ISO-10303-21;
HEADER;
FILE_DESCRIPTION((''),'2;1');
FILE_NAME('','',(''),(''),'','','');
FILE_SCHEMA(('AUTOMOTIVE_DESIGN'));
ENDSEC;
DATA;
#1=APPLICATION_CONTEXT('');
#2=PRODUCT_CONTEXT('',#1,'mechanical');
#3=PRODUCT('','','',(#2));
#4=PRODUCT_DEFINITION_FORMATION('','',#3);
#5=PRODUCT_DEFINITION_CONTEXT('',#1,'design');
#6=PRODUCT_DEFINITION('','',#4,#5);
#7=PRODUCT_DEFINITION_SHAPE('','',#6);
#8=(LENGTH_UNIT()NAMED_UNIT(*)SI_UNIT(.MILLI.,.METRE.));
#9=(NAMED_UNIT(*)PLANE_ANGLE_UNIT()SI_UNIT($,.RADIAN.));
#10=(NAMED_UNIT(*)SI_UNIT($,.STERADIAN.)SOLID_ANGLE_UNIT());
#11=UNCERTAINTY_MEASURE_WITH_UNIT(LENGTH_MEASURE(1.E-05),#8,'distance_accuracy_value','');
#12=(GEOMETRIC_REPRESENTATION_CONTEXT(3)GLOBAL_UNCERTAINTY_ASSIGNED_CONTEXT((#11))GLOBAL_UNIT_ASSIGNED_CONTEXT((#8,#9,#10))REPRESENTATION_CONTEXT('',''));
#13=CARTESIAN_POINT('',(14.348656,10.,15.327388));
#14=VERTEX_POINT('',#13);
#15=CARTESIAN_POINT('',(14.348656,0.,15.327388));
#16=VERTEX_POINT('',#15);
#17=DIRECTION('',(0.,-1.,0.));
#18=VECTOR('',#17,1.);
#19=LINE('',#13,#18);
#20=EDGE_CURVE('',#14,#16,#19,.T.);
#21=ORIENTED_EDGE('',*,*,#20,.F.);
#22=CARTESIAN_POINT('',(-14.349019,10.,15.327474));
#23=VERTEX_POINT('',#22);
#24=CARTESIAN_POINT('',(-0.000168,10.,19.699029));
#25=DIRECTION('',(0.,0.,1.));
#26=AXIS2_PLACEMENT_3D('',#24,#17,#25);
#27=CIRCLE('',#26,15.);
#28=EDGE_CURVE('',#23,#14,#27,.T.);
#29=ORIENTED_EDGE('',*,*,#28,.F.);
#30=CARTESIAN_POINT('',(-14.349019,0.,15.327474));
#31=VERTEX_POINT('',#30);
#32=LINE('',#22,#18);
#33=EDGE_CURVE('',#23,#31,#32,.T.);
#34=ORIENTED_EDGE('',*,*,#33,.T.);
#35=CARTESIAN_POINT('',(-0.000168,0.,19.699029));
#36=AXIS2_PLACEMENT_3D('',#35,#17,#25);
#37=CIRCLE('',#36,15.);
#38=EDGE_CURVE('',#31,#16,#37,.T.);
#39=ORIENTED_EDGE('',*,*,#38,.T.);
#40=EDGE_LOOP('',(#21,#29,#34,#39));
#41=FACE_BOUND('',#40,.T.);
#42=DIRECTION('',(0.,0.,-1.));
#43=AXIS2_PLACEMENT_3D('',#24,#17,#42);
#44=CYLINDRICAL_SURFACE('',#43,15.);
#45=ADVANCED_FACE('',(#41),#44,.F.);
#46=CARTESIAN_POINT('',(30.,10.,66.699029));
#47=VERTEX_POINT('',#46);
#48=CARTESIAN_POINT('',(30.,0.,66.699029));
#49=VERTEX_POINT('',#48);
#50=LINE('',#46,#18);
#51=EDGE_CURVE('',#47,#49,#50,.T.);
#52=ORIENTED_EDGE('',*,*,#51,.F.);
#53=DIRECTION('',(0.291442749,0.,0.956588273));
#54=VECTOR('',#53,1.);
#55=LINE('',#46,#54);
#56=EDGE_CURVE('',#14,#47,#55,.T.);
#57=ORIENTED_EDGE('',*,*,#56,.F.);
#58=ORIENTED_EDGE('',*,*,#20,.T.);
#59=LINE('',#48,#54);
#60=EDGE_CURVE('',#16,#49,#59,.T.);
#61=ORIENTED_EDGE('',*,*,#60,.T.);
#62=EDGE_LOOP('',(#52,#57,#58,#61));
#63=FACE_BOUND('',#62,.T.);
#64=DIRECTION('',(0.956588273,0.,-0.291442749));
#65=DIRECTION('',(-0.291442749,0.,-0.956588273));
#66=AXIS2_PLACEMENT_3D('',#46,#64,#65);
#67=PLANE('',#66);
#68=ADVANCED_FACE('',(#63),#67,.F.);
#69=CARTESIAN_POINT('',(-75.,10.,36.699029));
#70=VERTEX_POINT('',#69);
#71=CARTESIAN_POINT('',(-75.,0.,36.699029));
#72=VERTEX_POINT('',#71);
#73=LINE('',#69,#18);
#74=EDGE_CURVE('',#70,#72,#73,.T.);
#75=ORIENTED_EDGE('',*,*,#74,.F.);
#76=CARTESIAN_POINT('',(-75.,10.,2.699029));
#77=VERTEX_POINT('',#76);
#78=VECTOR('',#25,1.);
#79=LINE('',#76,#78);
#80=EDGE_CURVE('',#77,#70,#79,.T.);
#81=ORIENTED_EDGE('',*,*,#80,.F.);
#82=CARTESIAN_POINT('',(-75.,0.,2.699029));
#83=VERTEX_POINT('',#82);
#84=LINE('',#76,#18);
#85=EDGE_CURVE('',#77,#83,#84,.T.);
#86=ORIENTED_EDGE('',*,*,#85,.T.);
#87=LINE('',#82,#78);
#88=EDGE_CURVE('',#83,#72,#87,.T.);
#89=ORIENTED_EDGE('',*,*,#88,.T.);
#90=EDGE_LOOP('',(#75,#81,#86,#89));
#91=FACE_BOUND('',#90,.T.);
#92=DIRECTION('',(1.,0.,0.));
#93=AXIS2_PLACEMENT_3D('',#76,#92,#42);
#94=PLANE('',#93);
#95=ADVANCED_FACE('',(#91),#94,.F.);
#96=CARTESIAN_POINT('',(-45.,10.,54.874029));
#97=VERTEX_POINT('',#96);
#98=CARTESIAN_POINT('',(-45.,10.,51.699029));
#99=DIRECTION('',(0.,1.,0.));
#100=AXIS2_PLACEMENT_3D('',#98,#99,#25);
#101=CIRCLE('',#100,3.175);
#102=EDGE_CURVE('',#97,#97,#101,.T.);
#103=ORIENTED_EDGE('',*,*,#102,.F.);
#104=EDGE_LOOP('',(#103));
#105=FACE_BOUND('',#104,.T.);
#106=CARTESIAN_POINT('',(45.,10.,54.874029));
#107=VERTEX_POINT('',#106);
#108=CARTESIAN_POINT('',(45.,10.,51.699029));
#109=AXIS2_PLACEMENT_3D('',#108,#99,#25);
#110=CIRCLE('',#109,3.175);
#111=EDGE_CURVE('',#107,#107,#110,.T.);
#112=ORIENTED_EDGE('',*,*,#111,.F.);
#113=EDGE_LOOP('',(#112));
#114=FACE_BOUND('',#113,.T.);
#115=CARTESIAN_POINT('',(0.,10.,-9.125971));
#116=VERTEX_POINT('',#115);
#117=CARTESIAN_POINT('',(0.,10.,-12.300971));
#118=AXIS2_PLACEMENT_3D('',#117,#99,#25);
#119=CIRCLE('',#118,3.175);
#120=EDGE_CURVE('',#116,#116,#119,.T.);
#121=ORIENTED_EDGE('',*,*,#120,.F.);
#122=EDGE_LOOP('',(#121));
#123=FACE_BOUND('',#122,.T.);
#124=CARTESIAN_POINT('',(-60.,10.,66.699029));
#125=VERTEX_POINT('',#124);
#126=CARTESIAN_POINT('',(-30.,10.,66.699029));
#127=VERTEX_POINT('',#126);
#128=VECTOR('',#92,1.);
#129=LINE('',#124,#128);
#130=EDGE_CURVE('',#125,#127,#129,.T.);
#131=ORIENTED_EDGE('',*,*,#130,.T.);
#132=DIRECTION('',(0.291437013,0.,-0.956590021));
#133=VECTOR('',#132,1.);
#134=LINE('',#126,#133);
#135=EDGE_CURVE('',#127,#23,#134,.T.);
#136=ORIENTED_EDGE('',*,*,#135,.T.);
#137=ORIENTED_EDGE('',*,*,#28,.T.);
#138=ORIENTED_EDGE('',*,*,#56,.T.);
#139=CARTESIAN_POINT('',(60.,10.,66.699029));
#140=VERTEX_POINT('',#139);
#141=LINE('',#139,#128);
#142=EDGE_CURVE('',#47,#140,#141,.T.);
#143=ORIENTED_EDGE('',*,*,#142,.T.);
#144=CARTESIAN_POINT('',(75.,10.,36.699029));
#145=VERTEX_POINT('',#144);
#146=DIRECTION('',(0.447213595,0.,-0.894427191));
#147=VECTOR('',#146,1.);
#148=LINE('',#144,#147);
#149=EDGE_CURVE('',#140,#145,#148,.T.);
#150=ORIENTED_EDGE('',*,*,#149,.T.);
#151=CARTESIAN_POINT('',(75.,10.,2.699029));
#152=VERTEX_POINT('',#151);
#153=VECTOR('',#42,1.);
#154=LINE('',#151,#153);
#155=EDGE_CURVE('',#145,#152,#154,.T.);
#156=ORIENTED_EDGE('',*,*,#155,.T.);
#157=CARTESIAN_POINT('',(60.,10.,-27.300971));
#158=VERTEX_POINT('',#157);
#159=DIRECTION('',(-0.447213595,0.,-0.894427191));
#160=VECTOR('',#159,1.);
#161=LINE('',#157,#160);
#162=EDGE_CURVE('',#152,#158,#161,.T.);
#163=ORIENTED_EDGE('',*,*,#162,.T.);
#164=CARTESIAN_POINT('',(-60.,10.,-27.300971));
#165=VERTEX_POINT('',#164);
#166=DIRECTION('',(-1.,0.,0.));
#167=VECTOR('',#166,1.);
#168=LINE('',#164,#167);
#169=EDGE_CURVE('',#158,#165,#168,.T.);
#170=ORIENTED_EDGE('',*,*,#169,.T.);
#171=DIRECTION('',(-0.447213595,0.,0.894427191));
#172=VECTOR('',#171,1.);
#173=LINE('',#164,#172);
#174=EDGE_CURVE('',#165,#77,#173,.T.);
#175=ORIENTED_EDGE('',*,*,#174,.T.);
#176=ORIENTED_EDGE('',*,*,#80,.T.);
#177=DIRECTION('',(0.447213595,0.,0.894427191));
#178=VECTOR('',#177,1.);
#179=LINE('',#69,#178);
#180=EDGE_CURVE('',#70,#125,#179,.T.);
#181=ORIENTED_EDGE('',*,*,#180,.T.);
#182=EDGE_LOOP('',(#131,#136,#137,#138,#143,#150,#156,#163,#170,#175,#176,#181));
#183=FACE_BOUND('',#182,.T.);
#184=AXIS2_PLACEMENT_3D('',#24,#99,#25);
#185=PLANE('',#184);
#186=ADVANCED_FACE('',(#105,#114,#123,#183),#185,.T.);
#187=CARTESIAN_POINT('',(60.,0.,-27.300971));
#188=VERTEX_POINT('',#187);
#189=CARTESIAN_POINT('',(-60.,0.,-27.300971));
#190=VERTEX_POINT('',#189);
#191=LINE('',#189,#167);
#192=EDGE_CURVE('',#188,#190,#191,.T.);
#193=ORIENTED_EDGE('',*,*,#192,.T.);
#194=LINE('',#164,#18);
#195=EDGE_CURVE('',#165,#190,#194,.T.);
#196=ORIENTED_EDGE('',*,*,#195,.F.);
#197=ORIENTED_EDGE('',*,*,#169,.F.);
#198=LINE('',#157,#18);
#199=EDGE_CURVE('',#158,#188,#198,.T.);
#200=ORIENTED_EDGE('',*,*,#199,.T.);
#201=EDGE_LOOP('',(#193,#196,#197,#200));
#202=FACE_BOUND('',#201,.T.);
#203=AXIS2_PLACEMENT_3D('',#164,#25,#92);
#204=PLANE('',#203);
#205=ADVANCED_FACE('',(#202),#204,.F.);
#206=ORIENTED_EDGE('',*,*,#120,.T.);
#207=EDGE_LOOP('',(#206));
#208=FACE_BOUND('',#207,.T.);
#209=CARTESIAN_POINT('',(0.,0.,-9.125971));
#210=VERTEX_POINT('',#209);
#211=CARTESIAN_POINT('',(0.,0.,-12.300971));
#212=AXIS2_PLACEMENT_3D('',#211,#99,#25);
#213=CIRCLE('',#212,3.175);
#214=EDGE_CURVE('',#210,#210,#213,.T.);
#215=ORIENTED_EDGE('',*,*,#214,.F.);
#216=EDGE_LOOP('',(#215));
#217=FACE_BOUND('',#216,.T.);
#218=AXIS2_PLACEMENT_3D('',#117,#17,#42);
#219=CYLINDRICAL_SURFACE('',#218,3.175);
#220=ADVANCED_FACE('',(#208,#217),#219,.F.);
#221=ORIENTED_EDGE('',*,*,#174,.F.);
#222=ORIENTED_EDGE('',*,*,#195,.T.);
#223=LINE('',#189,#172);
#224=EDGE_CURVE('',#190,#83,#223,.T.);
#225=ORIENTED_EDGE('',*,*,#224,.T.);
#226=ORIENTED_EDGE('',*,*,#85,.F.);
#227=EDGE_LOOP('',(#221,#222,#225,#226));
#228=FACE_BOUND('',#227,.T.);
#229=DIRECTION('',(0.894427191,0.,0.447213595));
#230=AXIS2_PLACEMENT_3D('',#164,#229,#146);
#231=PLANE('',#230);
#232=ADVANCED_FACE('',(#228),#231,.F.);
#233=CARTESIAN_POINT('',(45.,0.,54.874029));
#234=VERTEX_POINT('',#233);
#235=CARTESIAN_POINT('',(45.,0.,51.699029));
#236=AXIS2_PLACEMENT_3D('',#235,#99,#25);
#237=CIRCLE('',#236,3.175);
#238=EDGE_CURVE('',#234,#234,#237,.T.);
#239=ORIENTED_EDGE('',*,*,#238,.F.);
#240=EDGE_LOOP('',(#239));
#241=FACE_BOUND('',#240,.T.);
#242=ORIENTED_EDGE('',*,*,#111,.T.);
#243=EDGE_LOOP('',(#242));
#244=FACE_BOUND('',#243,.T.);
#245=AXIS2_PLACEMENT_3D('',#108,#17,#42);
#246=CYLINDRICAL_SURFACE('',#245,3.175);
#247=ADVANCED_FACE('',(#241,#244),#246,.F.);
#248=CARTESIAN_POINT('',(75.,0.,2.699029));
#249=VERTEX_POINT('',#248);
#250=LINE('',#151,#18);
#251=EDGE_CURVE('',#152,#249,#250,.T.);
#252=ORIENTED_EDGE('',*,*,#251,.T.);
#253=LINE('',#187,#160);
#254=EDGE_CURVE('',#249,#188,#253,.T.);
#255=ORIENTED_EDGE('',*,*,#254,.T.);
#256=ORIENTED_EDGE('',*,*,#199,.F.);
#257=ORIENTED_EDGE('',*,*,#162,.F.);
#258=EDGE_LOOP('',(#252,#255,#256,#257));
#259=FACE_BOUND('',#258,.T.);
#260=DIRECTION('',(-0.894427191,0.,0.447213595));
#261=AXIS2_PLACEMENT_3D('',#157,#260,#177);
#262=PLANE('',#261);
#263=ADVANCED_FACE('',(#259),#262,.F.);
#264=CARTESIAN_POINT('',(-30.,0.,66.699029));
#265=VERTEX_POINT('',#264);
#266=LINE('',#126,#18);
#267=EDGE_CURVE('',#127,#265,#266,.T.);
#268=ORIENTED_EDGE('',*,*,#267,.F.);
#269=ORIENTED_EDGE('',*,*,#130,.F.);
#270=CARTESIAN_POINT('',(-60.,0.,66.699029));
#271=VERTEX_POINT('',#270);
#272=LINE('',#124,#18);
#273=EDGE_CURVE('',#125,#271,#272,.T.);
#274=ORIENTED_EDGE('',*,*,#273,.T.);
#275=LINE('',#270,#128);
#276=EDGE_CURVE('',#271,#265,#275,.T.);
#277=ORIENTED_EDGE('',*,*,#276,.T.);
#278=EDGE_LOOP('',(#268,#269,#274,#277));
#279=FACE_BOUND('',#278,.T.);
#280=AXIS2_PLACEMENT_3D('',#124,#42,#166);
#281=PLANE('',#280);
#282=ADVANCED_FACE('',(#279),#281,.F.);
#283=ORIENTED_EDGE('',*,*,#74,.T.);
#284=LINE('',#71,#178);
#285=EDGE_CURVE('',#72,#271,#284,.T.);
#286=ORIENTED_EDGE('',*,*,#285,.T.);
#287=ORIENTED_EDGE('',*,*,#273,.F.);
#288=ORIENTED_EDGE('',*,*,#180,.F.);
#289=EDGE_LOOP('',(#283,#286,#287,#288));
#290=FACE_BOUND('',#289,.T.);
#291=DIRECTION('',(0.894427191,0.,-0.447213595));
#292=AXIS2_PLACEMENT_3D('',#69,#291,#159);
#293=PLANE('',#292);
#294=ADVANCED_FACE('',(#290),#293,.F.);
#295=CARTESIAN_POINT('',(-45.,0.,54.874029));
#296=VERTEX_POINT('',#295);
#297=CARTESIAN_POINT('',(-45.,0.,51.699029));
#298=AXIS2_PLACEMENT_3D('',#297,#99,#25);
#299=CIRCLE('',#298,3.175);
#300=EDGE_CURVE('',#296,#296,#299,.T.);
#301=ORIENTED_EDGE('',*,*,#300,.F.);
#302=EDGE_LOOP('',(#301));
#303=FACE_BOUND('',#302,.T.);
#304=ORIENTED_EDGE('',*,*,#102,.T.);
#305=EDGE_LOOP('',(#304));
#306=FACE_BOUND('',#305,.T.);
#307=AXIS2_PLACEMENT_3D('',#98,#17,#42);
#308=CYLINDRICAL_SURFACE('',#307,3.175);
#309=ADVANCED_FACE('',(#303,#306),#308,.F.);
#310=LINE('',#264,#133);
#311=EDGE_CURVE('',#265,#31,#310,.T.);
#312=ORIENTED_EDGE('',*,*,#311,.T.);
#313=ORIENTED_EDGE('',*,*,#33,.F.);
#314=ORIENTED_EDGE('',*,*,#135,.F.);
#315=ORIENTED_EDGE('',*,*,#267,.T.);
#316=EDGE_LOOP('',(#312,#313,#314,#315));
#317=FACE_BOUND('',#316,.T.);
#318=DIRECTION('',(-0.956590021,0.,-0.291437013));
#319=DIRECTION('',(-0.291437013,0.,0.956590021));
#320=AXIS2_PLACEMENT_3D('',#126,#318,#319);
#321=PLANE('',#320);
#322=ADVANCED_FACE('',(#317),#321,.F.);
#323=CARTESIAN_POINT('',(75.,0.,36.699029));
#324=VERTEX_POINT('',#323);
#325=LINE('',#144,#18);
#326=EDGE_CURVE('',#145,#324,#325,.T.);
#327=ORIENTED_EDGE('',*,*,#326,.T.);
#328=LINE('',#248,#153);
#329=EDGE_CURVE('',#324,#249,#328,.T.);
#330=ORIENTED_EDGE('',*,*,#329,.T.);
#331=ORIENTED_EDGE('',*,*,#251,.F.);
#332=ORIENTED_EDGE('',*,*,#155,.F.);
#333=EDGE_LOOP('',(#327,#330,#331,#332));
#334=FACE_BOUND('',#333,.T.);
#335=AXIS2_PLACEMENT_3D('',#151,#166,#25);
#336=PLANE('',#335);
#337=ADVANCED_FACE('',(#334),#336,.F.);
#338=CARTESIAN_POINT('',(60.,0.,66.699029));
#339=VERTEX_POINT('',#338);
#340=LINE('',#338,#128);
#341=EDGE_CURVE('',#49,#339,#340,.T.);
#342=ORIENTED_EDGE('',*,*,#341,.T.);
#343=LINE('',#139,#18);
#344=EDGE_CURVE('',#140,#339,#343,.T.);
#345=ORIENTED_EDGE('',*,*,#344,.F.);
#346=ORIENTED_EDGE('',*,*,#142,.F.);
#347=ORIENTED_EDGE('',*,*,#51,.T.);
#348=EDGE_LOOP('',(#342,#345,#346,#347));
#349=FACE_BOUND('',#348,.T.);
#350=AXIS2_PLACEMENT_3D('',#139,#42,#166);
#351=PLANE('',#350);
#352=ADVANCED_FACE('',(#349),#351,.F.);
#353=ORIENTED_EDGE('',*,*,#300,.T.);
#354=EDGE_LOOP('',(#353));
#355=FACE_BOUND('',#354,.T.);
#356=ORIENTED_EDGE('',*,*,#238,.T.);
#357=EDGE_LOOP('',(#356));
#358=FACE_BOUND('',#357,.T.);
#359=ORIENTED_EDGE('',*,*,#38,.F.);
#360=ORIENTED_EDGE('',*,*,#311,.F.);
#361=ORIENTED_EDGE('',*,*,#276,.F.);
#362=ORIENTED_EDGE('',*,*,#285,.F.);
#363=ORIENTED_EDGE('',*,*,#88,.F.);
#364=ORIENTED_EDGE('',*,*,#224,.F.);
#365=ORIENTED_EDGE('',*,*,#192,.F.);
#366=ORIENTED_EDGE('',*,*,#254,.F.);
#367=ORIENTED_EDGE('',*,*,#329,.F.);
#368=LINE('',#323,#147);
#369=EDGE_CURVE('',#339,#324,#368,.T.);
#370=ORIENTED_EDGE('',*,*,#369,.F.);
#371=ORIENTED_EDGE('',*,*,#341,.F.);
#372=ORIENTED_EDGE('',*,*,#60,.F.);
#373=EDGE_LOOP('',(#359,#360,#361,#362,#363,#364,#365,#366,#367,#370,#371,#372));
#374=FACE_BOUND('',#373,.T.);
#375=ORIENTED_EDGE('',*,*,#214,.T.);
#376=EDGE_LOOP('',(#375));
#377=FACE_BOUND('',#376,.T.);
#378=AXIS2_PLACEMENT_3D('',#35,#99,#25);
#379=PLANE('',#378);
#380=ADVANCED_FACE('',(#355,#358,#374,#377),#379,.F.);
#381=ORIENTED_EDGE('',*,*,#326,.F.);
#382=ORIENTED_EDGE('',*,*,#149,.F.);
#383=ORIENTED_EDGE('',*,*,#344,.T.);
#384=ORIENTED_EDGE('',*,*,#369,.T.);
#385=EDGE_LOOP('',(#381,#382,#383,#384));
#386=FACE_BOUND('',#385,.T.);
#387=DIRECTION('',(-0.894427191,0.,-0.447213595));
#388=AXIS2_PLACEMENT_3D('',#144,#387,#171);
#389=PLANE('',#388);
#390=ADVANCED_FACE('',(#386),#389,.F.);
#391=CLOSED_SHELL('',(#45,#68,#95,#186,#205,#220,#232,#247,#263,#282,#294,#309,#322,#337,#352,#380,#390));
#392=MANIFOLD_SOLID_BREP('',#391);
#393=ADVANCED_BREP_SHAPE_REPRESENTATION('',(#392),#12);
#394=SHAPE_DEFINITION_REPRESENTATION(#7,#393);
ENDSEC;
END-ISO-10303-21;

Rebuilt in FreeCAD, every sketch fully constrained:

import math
import FreeCAD as App
import Part
import Sketcher
from FreeCAD import Vector
Q = App.Units.Quantity

doc = App.newDocument("Part")
params = doc.addObject("Spreadsheet::Sheet", "Params")
for row, (alias, value) in enumerate([
    ("sketch1_radius", "15 mm"),
    ("sketch1_diameter", "6.35 mm"),
    ("sketch1_width", "120 mm"),
    ("sketch1_width2", "30 mm"),
    ("sketch1_height", "34 mm"),
    ("pad1_length", "10 mm"),
], start=1):
    params.set(f"A{row}", alias)
    params.set(f"B{row}", "=" + value)
    params.setAlias(f"B{row}", alias)

body = doc.addObject("PartDesign::Body", "Body")

sketch1 = body.newObject("Sketcher::SketchObject", "Sketch")
sketch1.AttachmentSupport = (doc.getObject("XZ_Plane"), [""])
sketch1.MapMode = "FlatFace"
sketch1.addGeometry([
    Part.LineSegment(Vector(60, -27.3, 0), Vector(-60, -27.3, 0)),
    Part.LineSegment(Vector(-60, -27.3, 0), Vector(-75, 2.7, 0)),
    Part.LineSegment(Vector(-75, 2.7, 0), Vector(-75, 36.7, 0)),
    Part.LineSegment(Vector(-75, 36.7, 0), Vector(-60, 66.7, 0)),
    Part.LineSegment(Vector(-60, 66.7, 0), Vector(-30, 66.7, 0)),
    Part.LineSegment(Vector(-30, 66.7, 0), Vector(-14.3, 15.3, 0)),
    Part.ArcOfCircle(Part.Circle(Vector(0, 19.7, 0), Vector(0, 0, 1), 15), math.radians(-163), math.radians(-17)),
    Part.LineSegment(Vector(14.3, 15.3, 0), Vector(30, 66.7, 0)),
    Part.LineSegment(Vector(30, 66.7, 0), Vector(60, 66.7, 0)),
    Part.LineSegment(Vector(60, 66.7, 0), Vector(75, 36.7, 0)),
    Part.LineSegment(Vector(75, 36.7, 0), Vector(75, 2.7, 0)),
    Part.LineSegment(Vector(75, 2.7, 0), Vector(60, -27.3, 0)),
    Part.Circle(Vector(45, 51.7, 0), Vector(0, 0, 1), 3.2),
    Part.Circle(Vector(-45, 51.7, 0), Vector(0, 0, 1), 3.2),
    Part.Circle(Vector(0, -12.3, 0), Vector(0, 0, 1), 3.2),
], False)
sketch1.addConstraint([
    Sketcher.Constraint("Coincident", 0, 2, 1, 1),
    Sketcher.Constraint("Coincident", 1, 2, 2, 1),
    Sketcher.Constraint("Coincident", 2, 2, 3, 1),
    Sketcher.Constraint("Coincident", 3, 2, 4, 1),
    Sketcher.Constraint("Coincident", 4, 2, 5, 1),
    Sketcher.Constraint("Tangent", 5, 2, 6, 1),
    Sketcher.Constraint("Tangent", 6, 2, 7, 1),
    Sketcher.Constraint("Coincident", 7, 2, 8, 1),
    Sketcher.Constraint("Coincident", 8, 2, 9, 1),
    Sketcher.Constraint("Coincident", 9, 2, 10, 1),
    Sketcher.Constraint("Coincident", 10, 2, 11, 1),
    Sketcher.Constraint("Coincident", 11, 2, 0, 1),
    Sketcher.Constraint("Horizontal", 0),
    Sketcher.Constraint("Vertical", 2),
    Sketcher.Constraint("Horizontal", 4),
    Sketcher.Constraint("Horizontal", 8),
    Sketcher.Constraint("Vertical", 10),
    Sketcher.Constraint("Equal", 12, 13),
    Sketcher.Constraint("Equal", 13, 14),
    Sketcher.Constraint("Symmetric", 12, 3, 13, 3, -2),
    Sketcher.Constraint("Symmetric", 4, 2, 7, 2, -2),
    Sketcher.Constraint("Symmetric", 2, 2, 9, 2, -2),
    Sketcher.Constraint("PointOnObject", 14, 3, -2),
    Sketcher.Constraint("Parallel", 1, 9),
    Sketcher.Constraint("Parallel", 3, 11),
    Sketcher.Constraint("Horizontal", 1, 2, 10, 2),
    Sketcher.Constraint("Vertical", 0, 2, 3, 2),
    Sketcher.Constraint("Vertical", 8, 2, 11, 2),
    Sketcher.Constraint("Radius", 6, Q("15 mm")),
    Sketcher.Constraint("Diameter", 12, Q("6.35 mm")),
    Sketcher.Constraint("DistanceX", 0, 2, 0, 1, Q("120 mm")),
    Sketcher.Constraint("DistanceX", 4, 1, 4, 2, Q("30 mm")),
    Sketcher.Constraint("DistanceY", 2, 1, 2, 2, Q("34 mm")),
    Sketcher.Constraint("DistanceX", -1, 1, 12, 3, Q("45 mm")),
    Sketcher.Constraint("DistanceX", 1, 2, -1, 1, Q("75 mm")),
    Sketcher.Constraint("DistanceY", 6, 3, 12, 3, Q("32 mm")),
    Sketcher.Constraint("DistanceY", 14, 3, 6, 3, Q("32 mm")),
    Sketcher.Constraint("DistanceY", 0, 2, 14, 3, Q("15 mm")),
    Sketcher.Constraint("DistanceY", 0, 2, 1, 2, Q("30 mm")),
    Sketcher.Constraint("Distance", 7, Q("53.70298 mm")),
    Sketcher.Constraint("DistanceY", -1, 1, 6, 3, Q("19.699029 mm")),
])
sketch1.setExpression("Constraints[28]", "Params.sketch1_radius")
sketch1.setExpression("Constraints[29]", "Params.sketch1_diameter")
sketch1.setExpression("Constraints[30]", "Params.sketch1_width")
sketch1.setExpression("Constraints[31]", "Params.sketch1_width2")
sketch1.setExpression("Constraints[32]", "Params.sketch1_height")
pad1 = body.newObject("PartDesign::Pad", "Pad")
pad1.Profile = sketch1
pad1.setExpression("Length", "Params.pad1_length")
pad1.Reversed = True

doc.recompute()
